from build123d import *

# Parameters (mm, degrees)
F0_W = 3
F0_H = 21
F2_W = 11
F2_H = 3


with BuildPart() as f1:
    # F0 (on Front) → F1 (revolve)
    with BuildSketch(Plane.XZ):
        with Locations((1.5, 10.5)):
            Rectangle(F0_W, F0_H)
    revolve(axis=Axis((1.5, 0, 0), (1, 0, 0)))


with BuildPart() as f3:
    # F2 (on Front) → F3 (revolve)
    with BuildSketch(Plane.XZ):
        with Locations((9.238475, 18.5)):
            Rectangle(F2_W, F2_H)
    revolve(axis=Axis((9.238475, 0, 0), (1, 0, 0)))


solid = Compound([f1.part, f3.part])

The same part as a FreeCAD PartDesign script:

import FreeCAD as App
import Part
import Sketcher
from FreeCAD import Vector

doc = App.newDocument("Part")
body = doc.addObject("PartDesign::Body", "Body")

# Sketch on XZ plane
sketch1 = doc.addObject("Sketcher::SketchObject", "Sketch")
body.addObject(sketch1)
sketch1.AttachmentSupport = (doc.XZ_Plane, [""])
sketch1.MapMode = "FlatFace"
sketch1.addGeometry([
    Part.LineSegment(Vector(0, 21, 0), Vector(0, 0, 0)),
    Part.LineSegment(Vector(0, 0, 0), Vector(3, 0, 0)),
    Part.LineSegment(Vector(3, 0, 0), Vector(3, 21, 0)),
    Part.LineSegment(Vector(3, 21, 0), Vector(0, 21, 0)),
], False)
sketch1.addConstraint([
    Sketcher.Constraint("Coincident", 0, 2, 1, 1),
    Sketcher.Constraint("Coincident", 1, 2, 2, 1),
    Sketcher.Constraint("Coincident", 2, 2, 3, 1),
    Sketcher.Constraint("Coincident", 3, 2, 0, 1),
    Sketcher.Constraint("Vertical", 0),
    Sketcher.Constraint("Horizontal", 1),
    Sketcher.Constraint("Vertical", 2),
    Sketcher.Constraint("Horizontal", 3),
    Sketcher.Constraint("Coincident", 0, 2, -1, 1),
    Sketcher.Constraint("DistanceX", 1, 1, 1, 2, 3.0),
    Sketcher.Constraint("DistanceY", 0, 2, 0, 1, 21.0),
])
revolution = doc.addObject("PartDesign::Revolution", "Revolution")
body.addObject(revolution)
revolution.Profile = sketch1
revolution.ReferenceAxis = (sketch1, ["H_Axis"])
revolution.Angle = 360
body2 = doc.addObject("PartDesign::Body", "Body001")

# Sketch on XZ plane
sketch2 = doc.addObject("Sketcher::SketchObject", "Sketch001")
body2.addObject(sketch2)
sketch2.AttachmentSupport = (doc.getObject("XZ_Plane001"), [""])
sketch2.MapMode = "FlatFace"
sketch2.addGeometry([
    Part.LineSegment(Vector(3.7, 20, 0), Vector(3.7, 17, 0)),
    Part.LineSegment(Vector(3.7, 17, 0), Vector(14.7, 17, 0)),
    Part.LineSegment(Vector(14.7, 17, 0), Vector(14.7, 20, 0)),
    Part.LineSegment(Vector(14.7, 20, 0), Vector(3.7, 20, 0)),
], False)
sketch2.addConstraint([
    Sketcher.Constraint("Coincident", 0, 2, 1, 1),
    Sketcher.Constraint("Coincident", 1, 2, 2, 1),
    Sketcher.Constraint("Coincident", 2, 2, 3, 1),
    Sketcher.Constraint("Coincident", 3, 2, 0, 1),
    Sketcher.Constraint("Vertical", 0),
    Sketcher.Constraint("Horizontal", 1),
    Sketcher.Constraint("Vertical", 2),
    Sketcher.Constraint("Horizontal", 3),
    Sketcher.Constraint("DistanceX", 1, 1, 1, 2, 11.0),
    Sketcher.Constraint("DistanceY", 0, 2, 0, 1, 3.0),
    Sketcher.Constraint("DistanceY", -1, 1, 0, 2, 17.0),
    Sketcher.Constraint("DistanceX", -1, 1, 0, 2, 3.738475),
])
revolution2 = doc.addObject("PartDesign::Revolution", "Revolution001")
body2.addObject(revolution2)
revolution2.Profile = sketch2
revolution2.ReferenceAxis = (sketch2, ["H_Axis"])
revolution2.Angle = 360

doc.recompute()
